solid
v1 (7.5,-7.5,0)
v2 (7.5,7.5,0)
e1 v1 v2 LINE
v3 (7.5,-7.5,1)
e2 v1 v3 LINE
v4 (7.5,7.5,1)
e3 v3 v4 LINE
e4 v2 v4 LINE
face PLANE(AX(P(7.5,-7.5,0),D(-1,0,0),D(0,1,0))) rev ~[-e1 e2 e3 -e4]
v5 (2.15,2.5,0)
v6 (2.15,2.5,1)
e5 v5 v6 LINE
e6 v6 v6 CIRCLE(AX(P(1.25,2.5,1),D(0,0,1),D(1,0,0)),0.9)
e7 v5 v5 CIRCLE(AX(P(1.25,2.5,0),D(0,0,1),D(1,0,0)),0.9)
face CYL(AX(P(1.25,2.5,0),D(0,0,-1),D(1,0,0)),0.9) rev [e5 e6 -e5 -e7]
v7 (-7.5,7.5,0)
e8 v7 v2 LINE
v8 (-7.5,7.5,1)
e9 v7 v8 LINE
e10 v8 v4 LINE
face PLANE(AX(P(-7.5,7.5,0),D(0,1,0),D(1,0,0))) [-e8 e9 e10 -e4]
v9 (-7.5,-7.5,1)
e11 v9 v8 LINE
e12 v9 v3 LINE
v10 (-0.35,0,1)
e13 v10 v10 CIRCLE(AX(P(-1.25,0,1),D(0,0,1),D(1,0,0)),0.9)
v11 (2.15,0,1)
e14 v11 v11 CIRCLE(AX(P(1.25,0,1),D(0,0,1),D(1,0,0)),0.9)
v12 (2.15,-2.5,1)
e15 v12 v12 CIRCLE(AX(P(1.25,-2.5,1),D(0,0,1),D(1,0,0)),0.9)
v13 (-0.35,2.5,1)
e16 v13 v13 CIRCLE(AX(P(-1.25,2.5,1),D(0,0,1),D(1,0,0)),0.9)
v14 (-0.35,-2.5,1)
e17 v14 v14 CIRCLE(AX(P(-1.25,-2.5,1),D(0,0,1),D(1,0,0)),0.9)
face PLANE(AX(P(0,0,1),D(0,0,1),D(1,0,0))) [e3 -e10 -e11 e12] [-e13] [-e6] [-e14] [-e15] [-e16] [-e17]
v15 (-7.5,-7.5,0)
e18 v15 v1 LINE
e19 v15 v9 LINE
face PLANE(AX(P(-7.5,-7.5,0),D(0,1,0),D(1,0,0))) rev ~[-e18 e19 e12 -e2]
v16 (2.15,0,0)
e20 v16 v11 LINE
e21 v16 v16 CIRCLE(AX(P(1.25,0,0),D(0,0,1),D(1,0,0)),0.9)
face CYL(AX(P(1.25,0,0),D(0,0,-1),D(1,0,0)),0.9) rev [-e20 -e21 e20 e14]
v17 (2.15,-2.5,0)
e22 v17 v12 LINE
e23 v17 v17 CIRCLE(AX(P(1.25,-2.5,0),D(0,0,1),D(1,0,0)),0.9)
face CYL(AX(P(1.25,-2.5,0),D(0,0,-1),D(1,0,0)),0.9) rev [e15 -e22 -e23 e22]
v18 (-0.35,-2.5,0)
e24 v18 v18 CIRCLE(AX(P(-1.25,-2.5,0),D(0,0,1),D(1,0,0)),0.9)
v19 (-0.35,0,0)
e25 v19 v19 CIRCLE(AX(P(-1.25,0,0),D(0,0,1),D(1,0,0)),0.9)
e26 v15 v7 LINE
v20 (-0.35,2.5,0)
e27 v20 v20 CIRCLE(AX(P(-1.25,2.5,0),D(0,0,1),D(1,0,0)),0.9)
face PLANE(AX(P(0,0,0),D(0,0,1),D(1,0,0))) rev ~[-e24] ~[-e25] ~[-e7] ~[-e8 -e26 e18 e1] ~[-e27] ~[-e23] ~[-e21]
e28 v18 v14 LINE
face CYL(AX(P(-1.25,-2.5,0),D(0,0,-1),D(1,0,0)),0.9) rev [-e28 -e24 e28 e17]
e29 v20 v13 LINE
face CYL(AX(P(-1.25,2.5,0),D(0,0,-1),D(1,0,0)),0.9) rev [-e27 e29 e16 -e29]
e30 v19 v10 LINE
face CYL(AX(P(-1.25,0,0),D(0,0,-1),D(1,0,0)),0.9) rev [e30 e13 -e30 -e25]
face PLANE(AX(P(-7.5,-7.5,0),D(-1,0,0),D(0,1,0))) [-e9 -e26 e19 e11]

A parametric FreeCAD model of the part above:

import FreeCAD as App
import Part
import Sketcher
from FreeCAD import Vector


def add_polygon(sketch, points):
    """Adds a closed chain of lines whose ends are joined by coincident constraints."""
    first, n = sketch.GeometryCount, len(points)
    for a, b in zip(points, points[1:] + points[:1]):
        sketch.addGeometry(Part.LineSegment(App.Vector(*a, 0), App.Vector(*b, 0)), False)
    for i in range(n):
        sketch.addConstraint(Sketcher.Constraint("Coincident", first + i, 2, first + (i + 1) % n, 1))

doc = App.newDocument("Part")
params = doc.addObject("Spreadsheet::Sheet", "Params")
for row, (alias, value) in enumerate([
    ("sketch1_diameter", "1.8 mm"),
    ("sketch1_width", "15 mm"),
    ("pad1_length", "1 mm"),
], start=1):
    params.set(f"A{row}", alias)
    params.set(f"B{row}", "=" + value)
    params.setAlias(f"B{row}", alias)

body = doc.addObject("PartDesign::Body", "Body")

# Sketch on XY plane
sketch1 = body.newObject("Sketcher::SketchObject", "Sketch")
sketch1.AttachmentSupport = (doc.getObject("XY_Plane"), [""])
sketch1.MapMode = "FlatFace"
add_polygon(sketch1, [(-7.5, 7.5), (-7.5, -7.5), (7.5, -7.5), (7.5, 7.5)])  # lines 0-3
sketch1.addGeometry(Part.Circle(Vector(-1.25, -2.5, 0), Vector(0, 0, 1), 0.9), False)  # 4
sketch1.addGeometry(Part.Circle(Vector(1.25, -2.5, 0), Vector(0, 0, 1), 0.9), False)  # 5
sketch1.addGeometry(Part.Circle(Vector(-1.25, 0, 0), Vector(0, 0, 1), 0.9), False)  # 6
sketch1.addGeometry(Part.Circle(Vector(-1.25, 2.5, 0), Vector(0, 0, 1), 0.9), False)  # 7
sketch1.addGeometry(Part.Circle(Vector(1.25, 0, 0), Vector(0, 0, 1), 0.9), False)  # 8
sketch1.addGeometry(Part.Circle(Vector(1.25, 2.5, 0), Vector(0, 0, 1), 0.9), False)  # 9
sketch1.addConstraint([
    Sketcher.Constraint("Vertical", 0),
    Sketcher.Constraint("Horizontal", 1),
    Sketcher.Constraint("Vertical", 2),
    Sketcher.Constraint("Horizontal", 3),
    Sketcher.Constraint("Equal", 4, 5),
    Sketcher.Constraint("Equal", 5, 6),
    Sketcher.Constraint("Equal", 6, 7),
    Sketcher.Constraint("Equal", 7, 8),
    Sketcher.Constraint("Equal", 8, 9),
    Sketcher.Constraint("Symmetric", 5, 3, 7, 3, -1, 1),
    Sketcher.Constraint("Symmetric", 6, 3, 8, 3, -1, 1),
    Sketcher.Constraint("Symmetric", 4, 3, 9, 3, -1, 1),
    Sketcher.Constraint("Symmetric", 0, 2, 2, 2, -1, 1),
    Sketcher.Constraint("Symmetric", 4, 3, 5, 3, -2),
    Sketcher.Constraint("PointOnObject", 6, 3, -1),
    Sketcher.Constraint("Vertical", 4, 3, 6, 3),
    Sketcher.Constraint("Equal", 3, 0),
    Sketcher.Constraint("Diameter", 4, 1.8),
    Sketcher.Constraint("DistanceX", 1, 1, 1, 2, 15.0),
    Sketcher.Constraint("DistanceY", 4, 3, 7, 3, 5.0),
    Sketcher.Constraint("DistanceX", 4, 3, 5, 3, 2.5),
])
sketch1.setExpression("Constraints[21]", "Params.sketch1_diameter")
sketch1.setExpression("Constraints[22]", "Params.sketch1_width")
pad1 = body.newObject("PartDesign::Pad", "Pad")
pad1.Profile = sketch1
pad1.setExpression("Length", "Params.pad1_length")

doc.recompute()
